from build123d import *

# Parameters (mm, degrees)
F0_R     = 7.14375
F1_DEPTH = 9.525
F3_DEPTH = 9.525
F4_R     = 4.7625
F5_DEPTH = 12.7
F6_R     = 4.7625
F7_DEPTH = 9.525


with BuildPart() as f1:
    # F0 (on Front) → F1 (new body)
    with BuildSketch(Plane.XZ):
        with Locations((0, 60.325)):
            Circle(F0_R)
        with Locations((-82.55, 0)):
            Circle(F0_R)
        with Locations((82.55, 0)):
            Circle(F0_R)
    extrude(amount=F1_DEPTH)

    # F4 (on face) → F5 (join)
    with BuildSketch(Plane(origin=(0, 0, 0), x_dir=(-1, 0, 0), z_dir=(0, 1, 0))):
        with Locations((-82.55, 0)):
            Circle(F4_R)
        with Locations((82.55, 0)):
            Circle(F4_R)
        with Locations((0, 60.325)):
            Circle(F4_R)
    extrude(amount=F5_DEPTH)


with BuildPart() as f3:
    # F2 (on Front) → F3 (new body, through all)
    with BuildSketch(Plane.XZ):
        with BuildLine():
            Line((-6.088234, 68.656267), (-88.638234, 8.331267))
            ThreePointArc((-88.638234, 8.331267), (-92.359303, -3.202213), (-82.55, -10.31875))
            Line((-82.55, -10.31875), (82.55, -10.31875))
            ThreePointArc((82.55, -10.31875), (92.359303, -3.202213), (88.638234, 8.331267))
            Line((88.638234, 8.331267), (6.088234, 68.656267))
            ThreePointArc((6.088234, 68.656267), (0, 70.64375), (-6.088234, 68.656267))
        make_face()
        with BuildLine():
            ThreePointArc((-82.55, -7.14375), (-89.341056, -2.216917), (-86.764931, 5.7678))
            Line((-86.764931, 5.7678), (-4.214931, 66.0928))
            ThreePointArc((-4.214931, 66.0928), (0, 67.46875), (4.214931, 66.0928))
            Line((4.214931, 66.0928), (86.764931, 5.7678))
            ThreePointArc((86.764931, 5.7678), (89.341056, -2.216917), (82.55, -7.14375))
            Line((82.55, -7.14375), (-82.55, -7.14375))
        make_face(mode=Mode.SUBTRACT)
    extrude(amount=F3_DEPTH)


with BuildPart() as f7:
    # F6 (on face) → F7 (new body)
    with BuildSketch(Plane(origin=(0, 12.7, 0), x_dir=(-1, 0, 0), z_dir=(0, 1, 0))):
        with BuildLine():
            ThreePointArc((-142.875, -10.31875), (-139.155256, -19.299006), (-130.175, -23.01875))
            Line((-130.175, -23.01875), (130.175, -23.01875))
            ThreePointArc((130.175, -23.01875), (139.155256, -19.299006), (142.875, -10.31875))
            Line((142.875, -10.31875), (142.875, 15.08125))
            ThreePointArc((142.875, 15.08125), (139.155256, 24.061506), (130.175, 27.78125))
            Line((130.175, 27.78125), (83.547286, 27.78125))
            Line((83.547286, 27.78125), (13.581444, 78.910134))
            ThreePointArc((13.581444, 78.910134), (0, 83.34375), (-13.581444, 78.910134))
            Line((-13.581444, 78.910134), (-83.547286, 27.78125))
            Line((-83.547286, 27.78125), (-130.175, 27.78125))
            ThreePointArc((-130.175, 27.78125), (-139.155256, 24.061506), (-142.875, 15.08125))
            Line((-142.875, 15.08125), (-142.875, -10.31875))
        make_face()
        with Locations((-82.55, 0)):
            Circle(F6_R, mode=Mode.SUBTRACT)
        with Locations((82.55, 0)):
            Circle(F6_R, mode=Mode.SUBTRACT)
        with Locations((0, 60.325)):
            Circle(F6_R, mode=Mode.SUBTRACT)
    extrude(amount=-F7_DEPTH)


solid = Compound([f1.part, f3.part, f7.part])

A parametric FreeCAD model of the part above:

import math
import FreeCAD as App
import Part
import Sketcher

V = App.Vector
Q = App.Units.Quantity

doc = App.newDocument("Part")
body = doc.addObject("PartDesign::Body", "Body")
body.AllowCompound = True

# Sketch on XZ plane
sketch1 = body.newObject("Sketcher::SketchObject", "Sketch")
sketch1.AttachmentSupport = (doc.getObject("XZ_Plane"), [""])
sketch1.MapMode = "FlatFace"
sketch1.addGeometry([
    Part.Circle(V(0, 60, 0), V(0, 0, 1), 7),
    Part.Circle(V(-83, 0, 0), V(0, 0, 1), 7),
    Part.Circle(V(83, 0, 0), V(0, 0, 1), 7),
], False)
sketch1.addConstraint([
    Sketcher.Constraint("Equal", 0, 1),
    Sketcher.Constraint("Equal", 1, 2),
    Sketcher.Constraint("Symmetric", 1, 3, 2, 3, -1, 1),
    Sketcher.Constraint("PointOnObject", 0, 3, -2),
    Sketcher.Constraint("PointOnObject", 1, 3, -1),
    Sketcher.Constraint("Diameter", 0, Q("0.5625 in")),
    Sketcher.Constraint("DistanceX", 1, 3, 2, 3, Q("6.5 in")),
    Sketcher.Constraint("DistanceY", -1, 1, 0, 3, Q("2.375 in")),
])
pad1 = body.newObject("PartDesign::Pad", "Pad")
pad1.Profile = sketch1
pad1.Length = Q("0.375 in")

# Sketch on XZ plane
sketch2 = body.newObject("Sketcher::SketchObject", "Sketch001")
sketch2.AttachmentSupport = (doc.getObject("XZ_Plane"), [""])
sketch2.MapMode = "FlatFace"
sketch2.addGeometry([
    Part.Circle(V(82.5, 0, 0), V(0, 0, 1), 4.8),
    Part.Circle(V(-82.5, 0, 0), V(0, 0, 1), 4.8),
    Part.Circle(V(0, 60.3, 0), V(0, 0, 1), 4.8),
], False)
sketch2.addConstraint([
    Sketcher.Constraint("Equal", 0, 1),
    Sketcher.Constraint("Equal", 1, 2),
    Sketcher.Constraint("Symmetric", 0, 3, 1, 3, -1, 1),
    Sketcher.Constraint("PointOnObject", 0, 3, -1),
    Sketcher.Constraint("PointOnObject", 2, 3, -2),
    Sketcher.Constraint("Diameter", 0, Q("0.375 in")),
    Sketcher.Constraint("DistanceX", 1, 3, 0, 3, Q("6.5 in")),
    Sketcher.Constraint("DistanceY", -1, 1, 2, 3, Q("2.375 in")),
])
pad2 = body.newObject("PartDesign::Pad", "Pad001")
pad2.Profile = sketch2
pad2.Length = Q("0.5 in")
pad2.Reversed = True
body2 = doc.addObject("PartDesign::Body", "Body001")

# Sketch on XZ plane
sketch3 = body2.newObject("Sketcher::SketchObject", "Sketch002")
sketch3.AttachmentSupport = (doc.getObject("XZ_Plane001"), [""])
sketch3.MapMode = "FlatFace"
sketch3.addGeometry([
    Part.LineSegment(V(-6, 69, 0), V(-89, 8, 0)),  # 0
    Part.ArcOfCircle(Part.Circle(V(-83, 0, 0), V(0, 0, 1), 10), math.radians(126), math.radians(270)),  # 1
    Part.LineSegment(V(-83, -10, 0), V(83, -10, 0)),  # 2
    Part.ArcOfCircle(Part.Circle(V(83, 0, 0), V(0, 0, 1), 10), math.radians(-90), math.radians(54)),  # 3
    Part.LineSegment(V(89, 8, 0), V(6, 69, 0)),  # 4
    Part.ArcOfCircle(Part.Circle(V(0, 60, 0), V(0, 0, 1), 10), math.radians(54), math.radians(126)),  # 5
    Part.LineSegment(V(83, -7, 0), V(-83, -7, 0)),  # 6
    Part.ArcOfCircle(Part.Circle(V(-83, 0, 0), V(0, 0, 1), 7), math.radians(126), math.radians(270)),  # 7
    Part.LineSegment(V(-87, 6, 0), V(-4, 66, 0)),  # 8
    Part.ArcOfCircle(Part.Circle(V(0, 60, 0), V(0, 0, 1), 7), math.radians(54), math.radians(126)),  # 9
    Part.LineSegment(V(4, 66, 0), V(87, 6, 0)),  # 10
    Part.ArcOfCircle(Part.Circle(V(83, 0, 0), V(0, 0, 1), 7), math.radians(-90), math.radians(54)),  # 11
], False)
sketch3.addConstraint([
    Sketcher.Constraint("Tangent", 0, 2, 1, 1),
    Sketcher.Constraint("Tangent", 1, 2, 2, 1),
    Sketcher.Constraint("Tangent", 2, 2, 3, 1),
    Sketcher.Constraint("Tangent", 3, 2, 4, 1),
    Sketcher.Constraint("Tangent", 4, 2, 5, 1),
    Sketcher.Constraint("Tangent", 5, 2, 0, 1),
    Sketcher.Constraint("Tangent", 6, 2, 7, 2),
    Sketcher.Constraint("Tangent", 7, 1, 8, 1),
    Sketcher.Constraint("Tangent", 8, 2, 9, 2),
    Sketcher.Constraint("Tangent", 9, 1, 10, 1),
    Sketcher.Constraint("Tangent", 10, 2, 11, 2),
    Sketcher.Constraint("Tangent", 11, 1, 6, 1),
    Sketcher.Constraint("Horizontal", 2),
    Sketcher.Constraint("Horizontal", 6),
    Sketcher.Constraint("Coincident", 7, 3, 1, 3),
    Sketcher.Constraint("Coincident", 9, 3, 5, 3),
    Sketcher.Constraint("Coincident", 11, 3, 3, 3),
    Sketcher.Constraint("Equal", 1, 3),
    Sketcher.Constraint("Equal", 3, 5),
    Sketcher.Constraint("Equal", 7, 9),
    Sketcher.Constraint("Symmetric", 1, 3, 3, 3, -1, 1),
    Sketcher.Constraint("PointOnObject", 5, 3, -2),
    Sketcher.Constraint("DistanceX", 2, 1, 2, 2, Q("6.5 in")),
    Sketcher.Constraint("Radius", 1, Q("0.40625 in")),
    Sketcher.Constraint("Radius", 7, Q("0.28125 in")),
    Sketcher.Constraint("DistanceY", -1, 1, 5, 3, Q("2.375 in")),
])
pad3 = body2.newObject("PartDesign::Pad", "Pad002")
pad3.Profile = sketch3
pad3.Length = Q("0.375 in")
body3 = doc.addObject("PartDesign::Body", "Body002")

# Sketch on XZ plane
sketch4 = body3.newObject("Sketcher::SketchObject", "Sketch003")
sketch4.AttachmentSupport = (doc.getObject("XZ_Plane002"), [""])
sketch4.MapMode = "FlatFace"
sketch4.AttachmentOffset = App.Placement(V(0, 0, -0.5 * 25.4), App.Rotation())
sketch4.addGeometry([
    Part.ArcOfCircle(Part.Circle(V(130.2, -10.3, 0), V(0, 0, 1), 12.7), math.radians(-90), math.radians(0)),  # 0
    Part.LineSegment(V(130.2, -23, 0), V(-130.2, -23, 0)),  # 1
    Part.ArcOfCircle(Part.Circle(V(-130.2, -10.3, 0), V(0, 0, 1), 12.7), math.radians(-180), math.radians(-90)),  # 2
    Part.LineSegment(V(-142.9, -10.3, 0), V(-142.9, 15.1, 0)),  # 3
    Part.ArcOfCircle(Part.Circle(V(-130.2, 15.1, 0), V(0, 0, 1), 12.7), math.radians(90), math.radians(180)),  # 4
    Part.LineSegment(V(-130.2, 27.8, 0), V(-83.5, 27.8, 0)),  # 5
    Part.LineSegment(V(-83.5, 27.8, 0), V(-13.6, 78.9, 0)),  # 6
    Part.ArcOfCircle(Part.Circle(V(0, 60.3, 0), V(0, 0, 1), 23), math.radians(54), math.radians(126)),  # 7
    Part.LineSegment(V(13.6, 78.9, 0), V(83.5, 27.8, 0)),  # 8
    Part.LineSegment(V(83.5, 27.8, 0), V(130.2, 27.8, 0)),  # 9
    Part.ArcOfCircle(Part.Circle(V(130.2, 15.1, 0), V(0, 0, 1), 12.7), math.radians(0), math.radians(90)),  # 10
    Part.LineSegment(V(142.9, 15.1, 0), V(142.9, -10.3, 0)),  # 11
    Part.Circle(V(82.5, 0, 0), V(0, 0, 1), 4.8),  # 12
    Part.Circle(V(-82.5, 0, 0), V(0, 0, 1), 4.8),  # 13
    Part.Circle(V(0, 60.3, 0), V(0, 0, 1), 4.8),  # 14
], False)
sketch4.addConstraint([
    Sketcher.Constraint("Tangent", 0, 1, 1, 1),
    Sketcher.Constraint("Tangent", 1, 2, 2, 2),
    Sketcher.Constraint("Tangent", 2, 1, 3, 1),
    Sketcher.Constraint("Tangent", 3, 2, 4, 2),
    Sketcher.Constraint("Tangent", 4, 1, 5, 1),
    Sketcher.Constraint("Coincident", 5, 2, 6, 1),
    Sketcher.Constraint("Tangent", 6, 2, 7, 2),
    Sketcher.Constraint("Tangent", 7, 1, 8, 1),
    Sketcher.Constraint("Coincident", 8, 2, 9, 1),
    Sketcher.Constraint("Tangent", 9, 2, 10, 2),
    Sketcher.Constraint("Tangent", 10, 1, 11, 1),
    Sketcher.Constraint("Tangent", 11, 2, 0, 2),
    Sketcher.Constraint("Horizontal", 1),
    Sketcher.Constraint("Vertical", 3),
    Sketcher.Constraint("Horizontal", 5),
    Sketcher.Constraint("Horizontal", 9),
    Sketcher.Constraint("Vertical", 11),
    Sketcher.Constraint("Coincident", 14, 3, 7, 3),
    Sketcher.Constraint("Equal", 0, 2),
    Sketcher.Constraint("Equal", 2, 4),
    Sketcher.Constraint("Equal", 4, 10),
    Sketcher.Constraint("Equal", 12, 13),
    Sketcher.Constraint("Equal", 13, 14),
    Sketcher.Constraint("Symmetric", 12, 3, 13, 3, -1, 1),
    Sketcher.Constraint("Symmetric", 4, 3, 10, 3, -2),
    Sketcher.Constraint("Symmetric", 6, 2, 7, 1, -2),
    Sketcher.Constraint("PointOnObject", 12, 3, -1),
    Sketcher.Constraint("Radius", 0, Q("0.5 in")),
    Sketcher.Constraint("DistanceY", 3, 1, 3, 2, Q("1 in")),
    Sketcher.Constraint("Diameter", 12, Q("0.375 in")),
    Sketcher.Constraint("Radius", 7, Q("0.9062499 in")),
    Sketcher.Constraint("DistanceX", 1, 2, 1, 1, Q("10.25 in")),
    Sketcher.Constraint("DistanceX", 13, 3, 12, 3, Q("6.5 in")),
    Sketcher.Constraint("DistanceY", 0, 3, -1, 1, Q("0.40625 in")),
    Sketcher.Constraint("DistanceY", -1, 1, 7, 3, Q("2.3750001 in")),
    Sketcher.Constraint("Distance", 6, Q("86.656689 mm")),
])
pad4 = body3.newObject("PartDesign::Pad", "Pad003")
pad4.Profile = sketch4
pad4.Length = Q("0.375 in")

doc.recompute()
